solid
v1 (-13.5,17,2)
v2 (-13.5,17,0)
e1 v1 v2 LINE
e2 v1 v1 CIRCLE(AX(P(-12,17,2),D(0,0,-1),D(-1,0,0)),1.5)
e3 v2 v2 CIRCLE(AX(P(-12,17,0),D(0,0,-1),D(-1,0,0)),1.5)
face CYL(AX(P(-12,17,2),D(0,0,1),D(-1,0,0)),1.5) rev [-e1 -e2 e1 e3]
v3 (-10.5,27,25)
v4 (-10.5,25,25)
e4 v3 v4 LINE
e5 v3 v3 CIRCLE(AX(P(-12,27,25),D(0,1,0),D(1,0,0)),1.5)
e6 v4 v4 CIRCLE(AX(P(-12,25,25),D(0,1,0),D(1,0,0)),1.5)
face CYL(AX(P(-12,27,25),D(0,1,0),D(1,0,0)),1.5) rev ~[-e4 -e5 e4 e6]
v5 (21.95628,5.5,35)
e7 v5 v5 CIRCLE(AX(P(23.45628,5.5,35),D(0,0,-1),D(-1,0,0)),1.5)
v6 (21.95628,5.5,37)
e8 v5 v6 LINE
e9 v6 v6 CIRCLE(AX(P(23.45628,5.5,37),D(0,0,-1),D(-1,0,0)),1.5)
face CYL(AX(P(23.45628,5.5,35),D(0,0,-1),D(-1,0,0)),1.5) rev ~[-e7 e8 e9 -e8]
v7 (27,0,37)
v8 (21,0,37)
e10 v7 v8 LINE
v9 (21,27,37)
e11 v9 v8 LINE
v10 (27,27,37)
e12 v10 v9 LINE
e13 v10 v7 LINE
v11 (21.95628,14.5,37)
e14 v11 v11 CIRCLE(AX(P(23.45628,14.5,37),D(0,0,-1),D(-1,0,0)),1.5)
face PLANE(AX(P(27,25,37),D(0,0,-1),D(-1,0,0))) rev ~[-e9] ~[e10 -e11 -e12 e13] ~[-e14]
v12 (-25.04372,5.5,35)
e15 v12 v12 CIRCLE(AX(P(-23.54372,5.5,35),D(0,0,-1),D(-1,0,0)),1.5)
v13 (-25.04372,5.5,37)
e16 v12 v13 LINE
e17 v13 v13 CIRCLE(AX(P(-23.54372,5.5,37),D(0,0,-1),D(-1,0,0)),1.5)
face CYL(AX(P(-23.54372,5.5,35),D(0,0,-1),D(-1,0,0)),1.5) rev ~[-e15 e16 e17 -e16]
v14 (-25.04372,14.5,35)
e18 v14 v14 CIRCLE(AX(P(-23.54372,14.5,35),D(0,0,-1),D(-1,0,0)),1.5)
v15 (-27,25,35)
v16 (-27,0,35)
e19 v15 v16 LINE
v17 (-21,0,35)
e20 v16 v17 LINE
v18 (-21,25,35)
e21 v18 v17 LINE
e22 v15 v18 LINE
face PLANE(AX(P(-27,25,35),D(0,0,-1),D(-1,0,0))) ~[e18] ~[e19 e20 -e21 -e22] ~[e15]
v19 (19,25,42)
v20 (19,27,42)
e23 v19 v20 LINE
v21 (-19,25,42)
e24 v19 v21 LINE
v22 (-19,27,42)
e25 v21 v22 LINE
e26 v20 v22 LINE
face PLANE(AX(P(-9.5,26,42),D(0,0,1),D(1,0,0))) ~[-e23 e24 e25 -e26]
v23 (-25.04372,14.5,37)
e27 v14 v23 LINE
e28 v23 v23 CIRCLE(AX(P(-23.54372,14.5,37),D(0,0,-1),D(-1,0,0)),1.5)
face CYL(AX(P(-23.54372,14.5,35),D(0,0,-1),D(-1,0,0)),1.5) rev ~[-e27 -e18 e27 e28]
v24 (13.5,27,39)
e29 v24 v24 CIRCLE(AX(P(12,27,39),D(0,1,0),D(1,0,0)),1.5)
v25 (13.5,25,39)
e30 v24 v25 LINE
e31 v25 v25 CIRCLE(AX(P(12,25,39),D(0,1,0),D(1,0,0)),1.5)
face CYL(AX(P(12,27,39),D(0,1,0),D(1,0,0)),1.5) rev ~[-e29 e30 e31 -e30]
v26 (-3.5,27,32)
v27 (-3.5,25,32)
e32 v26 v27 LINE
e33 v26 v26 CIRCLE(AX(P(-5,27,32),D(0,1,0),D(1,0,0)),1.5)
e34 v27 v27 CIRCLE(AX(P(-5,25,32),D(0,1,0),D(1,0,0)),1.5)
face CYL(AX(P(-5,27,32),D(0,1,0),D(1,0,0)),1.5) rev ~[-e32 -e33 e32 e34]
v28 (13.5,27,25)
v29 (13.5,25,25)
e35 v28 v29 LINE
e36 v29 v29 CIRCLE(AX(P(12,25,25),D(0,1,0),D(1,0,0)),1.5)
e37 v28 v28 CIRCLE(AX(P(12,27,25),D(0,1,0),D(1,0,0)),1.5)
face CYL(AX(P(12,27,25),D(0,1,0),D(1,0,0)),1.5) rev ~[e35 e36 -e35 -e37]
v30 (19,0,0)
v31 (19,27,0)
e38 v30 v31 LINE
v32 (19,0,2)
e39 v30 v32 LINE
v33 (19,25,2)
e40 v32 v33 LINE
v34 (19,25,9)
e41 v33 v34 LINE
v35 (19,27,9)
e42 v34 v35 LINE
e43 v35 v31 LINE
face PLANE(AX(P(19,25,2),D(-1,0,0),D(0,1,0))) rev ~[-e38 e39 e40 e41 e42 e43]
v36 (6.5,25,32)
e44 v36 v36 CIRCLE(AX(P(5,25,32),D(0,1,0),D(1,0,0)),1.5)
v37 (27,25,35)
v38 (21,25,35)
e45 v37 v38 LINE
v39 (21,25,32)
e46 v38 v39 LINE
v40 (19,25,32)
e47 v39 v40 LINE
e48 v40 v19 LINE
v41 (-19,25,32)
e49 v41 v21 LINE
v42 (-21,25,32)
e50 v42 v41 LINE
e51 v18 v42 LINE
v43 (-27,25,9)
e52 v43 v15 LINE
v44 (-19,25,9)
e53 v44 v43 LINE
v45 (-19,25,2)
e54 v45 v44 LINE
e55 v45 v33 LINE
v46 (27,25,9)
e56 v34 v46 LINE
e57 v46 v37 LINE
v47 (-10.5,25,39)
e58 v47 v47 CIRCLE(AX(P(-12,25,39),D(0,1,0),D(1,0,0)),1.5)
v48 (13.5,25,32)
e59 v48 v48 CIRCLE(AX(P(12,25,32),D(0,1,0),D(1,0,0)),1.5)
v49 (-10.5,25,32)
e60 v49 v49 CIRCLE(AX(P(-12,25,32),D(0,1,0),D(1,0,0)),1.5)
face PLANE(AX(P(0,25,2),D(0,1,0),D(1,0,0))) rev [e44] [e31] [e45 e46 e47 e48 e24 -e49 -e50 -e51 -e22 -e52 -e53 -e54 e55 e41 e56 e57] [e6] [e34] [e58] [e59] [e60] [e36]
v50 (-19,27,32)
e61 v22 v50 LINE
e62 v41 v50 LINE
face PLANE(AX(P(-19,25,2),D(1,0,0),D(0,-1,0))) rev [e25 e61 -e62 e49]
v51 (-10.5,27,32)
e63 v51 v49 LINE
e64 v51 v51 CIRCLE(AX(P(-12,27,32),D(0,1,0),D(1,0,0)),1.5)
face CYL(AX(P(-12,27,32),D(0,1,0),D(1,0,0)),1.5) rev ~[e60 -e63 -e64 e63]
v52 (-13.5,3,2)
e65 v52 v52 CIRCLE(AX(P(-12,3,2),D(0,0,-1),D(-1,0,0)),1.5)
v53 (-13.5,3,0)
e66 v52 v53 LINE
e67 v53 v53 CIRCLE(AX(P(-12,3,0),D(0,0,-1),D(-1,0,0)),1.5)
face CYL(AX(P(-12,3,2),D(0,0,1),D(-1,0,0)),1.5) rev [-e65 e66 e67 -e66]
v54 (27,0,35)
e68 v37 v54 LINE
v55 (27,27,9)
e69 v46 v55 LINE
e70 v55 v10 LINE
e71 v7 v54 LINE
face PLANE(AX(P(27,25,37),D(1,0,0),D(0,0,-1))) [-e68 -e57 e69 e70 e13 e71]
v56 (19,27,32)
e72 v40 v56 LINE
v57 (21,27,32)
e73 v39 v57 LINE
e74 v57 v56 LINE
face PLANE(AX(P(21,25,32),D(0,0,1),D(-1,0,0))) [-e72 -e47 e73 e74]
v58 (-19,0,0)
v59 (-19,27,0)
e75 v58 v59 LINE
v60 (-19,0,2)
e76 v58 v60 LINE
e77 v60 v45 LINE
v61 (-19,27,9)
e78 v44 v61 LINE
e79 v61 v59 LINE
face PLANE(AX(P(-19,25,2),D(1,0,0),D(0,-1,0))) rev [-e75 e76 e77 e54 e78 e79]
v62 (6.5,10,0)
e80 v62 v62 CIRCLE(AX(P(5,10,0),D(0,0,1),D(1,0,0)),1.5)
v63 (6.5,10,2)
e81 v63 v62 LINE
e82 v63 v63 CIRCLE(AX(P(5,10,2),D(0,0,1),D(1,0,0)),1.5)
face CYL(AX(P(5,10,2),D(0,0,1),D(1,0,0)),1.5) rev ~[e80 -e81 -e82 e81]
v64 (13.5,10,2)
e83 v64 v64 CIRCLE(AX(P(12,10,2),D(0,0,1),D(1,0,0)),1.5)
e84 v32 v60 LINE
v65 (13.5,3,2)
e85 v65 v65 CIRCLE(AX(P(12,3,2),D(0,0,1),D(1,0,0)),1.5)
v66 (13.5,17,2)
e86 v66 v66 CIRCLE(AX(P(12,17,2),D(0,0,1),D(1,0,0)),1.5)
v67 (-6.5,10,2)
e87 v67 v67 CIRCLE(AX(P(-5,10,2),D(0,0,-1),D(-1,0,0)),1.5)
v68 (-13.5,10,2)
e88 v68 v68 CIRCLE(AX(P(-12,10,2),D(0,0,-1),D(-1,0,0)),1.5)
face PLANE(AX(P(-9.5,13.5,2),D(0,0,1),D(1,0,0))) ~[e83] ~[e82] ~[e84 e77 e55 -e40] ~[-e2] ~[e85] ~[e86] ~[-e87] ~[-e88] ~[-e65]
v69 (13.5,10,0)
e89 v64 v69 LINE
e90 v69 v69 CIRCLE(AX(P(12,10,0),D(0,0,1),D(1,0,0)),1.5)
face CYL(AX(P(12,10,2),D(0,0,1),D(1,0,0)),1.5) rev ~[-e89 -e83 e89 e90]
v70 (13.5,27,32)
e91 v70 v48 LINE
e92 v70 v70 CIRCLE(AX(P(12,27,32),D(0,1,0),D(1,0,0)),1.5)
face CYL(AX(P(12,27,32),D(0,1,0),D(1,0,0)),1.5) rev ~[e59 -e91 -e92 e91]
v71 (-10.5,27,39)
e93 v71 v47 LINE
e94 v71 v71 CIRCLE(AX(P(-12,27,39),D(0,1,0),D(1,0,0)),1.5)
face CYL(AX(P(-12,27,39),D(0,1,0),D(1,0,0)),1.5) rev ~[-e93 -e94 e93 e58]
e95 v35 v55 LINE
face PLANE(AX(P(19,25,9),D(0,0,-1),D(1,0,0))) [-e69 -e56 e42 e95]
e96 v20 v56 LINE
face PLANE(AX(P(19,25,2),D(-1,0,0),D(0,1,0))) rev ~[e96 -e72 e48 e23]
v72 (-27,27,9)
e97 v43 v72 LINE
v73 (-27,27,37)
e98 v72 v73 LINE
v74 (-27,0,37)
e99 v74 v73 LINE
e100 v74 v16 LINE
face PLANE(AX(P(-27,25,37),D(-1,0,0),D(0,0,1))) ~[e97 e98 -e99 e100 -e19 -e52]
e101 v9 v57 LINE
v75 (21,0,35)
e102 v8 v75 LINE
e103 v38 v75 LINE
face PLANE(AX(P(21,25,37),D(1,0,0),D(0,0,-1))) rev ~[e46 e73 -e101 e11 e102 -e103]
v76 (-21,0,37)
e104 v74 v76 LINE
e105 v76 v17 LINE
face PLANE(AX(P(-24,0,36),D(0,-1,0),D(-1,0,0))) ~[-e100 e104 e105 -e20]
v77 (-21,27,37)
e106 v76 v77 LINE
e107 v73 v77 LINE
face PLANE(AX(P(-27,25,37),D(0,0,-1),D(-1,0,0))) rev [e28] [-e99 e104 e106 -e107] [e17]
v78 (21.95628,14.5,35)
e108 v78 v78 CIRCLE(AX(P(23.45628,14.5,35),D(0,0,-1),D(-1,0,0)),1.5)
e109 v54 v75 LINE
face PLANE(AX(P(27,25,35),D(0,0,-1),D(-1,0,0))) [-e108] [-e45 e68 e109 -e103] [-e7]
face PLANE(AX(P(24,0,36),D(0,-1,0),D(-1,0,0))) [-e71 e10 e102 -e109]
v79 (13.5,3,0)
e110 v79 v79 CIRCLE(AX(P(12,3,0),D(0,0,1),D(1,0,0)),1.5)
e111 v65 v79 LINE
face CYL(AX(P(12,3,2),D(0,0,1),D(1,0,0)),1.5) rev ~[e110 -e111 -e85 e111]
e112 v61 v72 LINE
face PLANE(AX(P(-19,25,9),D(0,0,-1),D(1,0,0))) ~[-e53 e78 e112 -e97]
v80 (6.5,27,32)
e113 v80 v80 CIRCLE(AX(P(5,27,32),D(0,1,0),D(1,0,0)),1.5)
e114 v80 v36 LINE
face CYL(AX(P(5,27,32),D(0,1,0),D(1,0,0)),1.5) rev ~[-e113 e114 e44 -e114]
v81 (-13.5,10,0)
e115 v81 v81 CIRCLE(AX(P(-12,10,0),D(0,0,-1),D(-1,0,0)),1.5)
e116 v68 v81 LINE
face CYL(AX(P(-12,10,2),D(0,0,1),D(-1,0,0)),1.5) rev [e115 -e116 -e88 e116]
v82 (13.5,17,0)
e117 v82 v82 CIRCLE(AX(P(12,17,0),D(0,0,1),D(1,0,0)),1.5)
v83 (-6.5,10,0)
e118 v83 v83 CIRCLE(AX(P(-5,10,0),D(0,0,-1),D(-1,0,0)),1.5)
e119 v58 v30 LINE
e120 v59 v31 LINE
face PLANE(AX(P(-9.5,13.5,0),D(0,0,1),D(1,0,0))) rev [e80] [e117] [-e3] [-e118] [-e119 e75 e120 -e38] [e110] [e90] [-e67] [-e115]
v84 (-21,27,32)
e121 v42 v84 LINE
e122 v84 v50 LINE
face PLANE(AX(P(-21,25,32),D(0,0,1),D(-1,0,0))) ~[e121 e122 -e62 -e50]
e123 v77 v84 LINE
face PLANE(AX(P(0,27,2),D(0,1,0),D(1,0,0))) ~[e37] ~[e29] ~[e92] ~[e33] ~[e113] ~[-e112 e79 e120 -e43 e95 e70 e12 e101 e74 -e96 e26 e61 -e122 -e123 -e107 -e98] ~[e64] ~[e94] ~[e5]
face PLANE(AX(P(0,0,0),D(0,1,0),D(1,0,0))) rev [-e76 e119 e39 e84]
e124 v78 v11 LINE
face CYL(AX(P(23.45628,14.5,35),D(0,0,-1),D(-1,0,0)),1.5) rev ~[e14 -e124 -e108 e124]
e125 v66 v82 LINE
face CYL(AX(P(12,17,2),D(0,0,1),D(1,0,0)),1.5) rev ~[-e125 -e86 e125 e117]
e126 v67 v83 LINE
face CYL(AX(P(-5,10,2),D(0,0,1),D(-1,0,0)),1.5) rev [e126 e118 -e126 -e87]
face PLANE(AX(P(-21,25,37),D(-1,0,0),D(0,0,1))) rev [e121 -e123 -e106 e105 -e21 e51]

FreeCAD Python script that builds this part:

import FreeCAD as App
import Part
import Sketcher
from FreeCAD import Vector


def add_polygon(sketch, points):
    """Adds a closed chain of lines whose ends are joined by coincident constraints."""
    first, n = sketch.GeometryCount, len(points)
    for a, b in zip(points, points[1:] + points[:1]):
        sketch.addGeometry(Part.LineSegment(App.Vector(*a, 0), App.Vector(*b, 0)), False)
    for i in range(n):
        sketch.addConstraint(Sketcher.Constraint("Coincident", first + i, 2, first + (i + 1) % n, 1))

doc = App.newDocument("Part")
body = doc.addObject("PartDesign::Body", "Body")

# Sketch on XY plane
sketch1 = body.newObject("Sketcher::SketchObject", "Sketch")
sketch1.AttachmentSupport = (doc.getObject("XY_Plane"), [""])
sketch1.MapMode = "FlatFace"
add_polygon(sketch1, [(0, 27), (0, 0), (19, 0), (19, 27)])  # lines 0-3
sketch1.addConstraint([
    Sketcher.Constraint("Vertical", 0),
    Sketcher.Constraint("Horizontal", 1),
    Sketcher.Constraint("Vertical", 2),
    Sketcher.Constraint("Horizontal", 3),
    Sketcher.Constraint("Coincident", 0, 2, -1, 1),
    Sketcher.Constraint("DistanceX", 1, 1, 1, 2, 19.0),
    Sketcher.Constraint("DistanceY", 0, 2, 0, 1, 27.0),
])
pad1 = body.newObject("PartDesign::Pad", "Pad")
pad1.Profile = sketch1
pad1.Length = 2

# Sketch on XY plane
sketch2 = body.newObject("Sketcher::SketchObject", "Sketch001")
sketch2.AttachmentSupport = (doc.getObject("XY_Plane"), [""])
sketch2.MapMode = "FlatFace"
sketch2.AttachmentOffset = App.Placement(Vector(0, 0, 2), App.Rotation())
add_polygon(sketch2, [(0, 27), (0, 25), (19, 25), (19, 27)])  # lines 0-3
sketch2.addConstraint([
    Sketcher.Constraint("Vertical", 0),
    Sketcher.Constraint("Horizontal", 1),
    Sketcher.Constraint("Vertical", 2),
    Sketcher.Constraint("Horizontal", 3),
    Sketcher.Constraint("PointOnObject", 0, 2, -2),
    Sketcher.Constraint("DistanceX", 1, 1, 1, 2, 19.0),
    Sketcher.Constraint("DistanceY", 0, 2, 0, 1, 2.0),
    Sketcher.Constraint("DistanceY", -1, 1, 0, 2, 25.0),
])
pad2 = body.newObject("PartDesign::Pad", "Pad001")
pad2.Profile = sketch2
pad2.Length = 40

# Sketch on XZ plane
sketch3 = body.newObject("Sketcher::SketchObject", "Sketch002")
sketch3.AttachmentSupport = (doc.getObject("XZ_Plane"), [""])
sketch3.MapMode = "FlatFace"
sketch3.AttachmentOffset = App.Placement(Vector(0, 0, -25), App.Rotation())
add_polygon(sketch3, [(19, 32), (19, 9), (27, 9), (27, 37), (21, 37), (21, 32)])  # lines 0-5
sketch3.addConstraint([
    Sketcher.Constraint("Vertical", 0),
    Sketcher.Constraint("Horizontal", 1),
    Sketcher.Constraint("Vertical", 2),
    Sketcher.Constraint("Horizontal", 3),
    Sketcher.Constraint("Vertical", 4),
    Sketcher.Constraint("Horizontal", 5),
    Sketcher.Constraint("DistanceX", 1, 1, 1, 2, 8.0),
    Sketcher.Constraint("DistanceX", 3, 2, 3, 1, 6.0),
    Sketcher.Constraint("DistanceY", 0, 2, 0, 1, 23.0),
    Sketcher.Constraint("DistanceY", 2, 1, 2, 2, 28.0),
    Sketcher.Constraint("DistanceX", -1, 1, 0, 2, 19.0),
    Sketcher.Constraint("DistanceY", -1, 1, 0, 2, 9.0),
])
pad3 = body.newObject("PartDesign::Pad", "Pad002")
pad3.Profile = sketch3
pad3.Length = 2
pad3.Reversed = True

# Sketch on XZ plane
sketch4 = body.newObject("Sketcher::SketchObject", "Sketch003")
sketch4.AttachmentSupport = (doc.getObject("XZ_Plane"), [""])
sketch4.MapMode = "FlatFace"
sketch4.AttachmentOffset = App.Placement(Vector(0, 0, -25), App.Rotation())
add_polygon(sketch4, [(27, 35), (27, 37), (21, 37), (21, 35)])  # lines 0-3
sketch4.addConstraint([
    Sketcher.Constraint("Vertical", 0),
    Sketcher.Constraint("Horizontal", 1),
    Sketcher.Constraint("Vertical", 2),
    Sketcher.Constraint("Horizontal", 3),
    Sketcher.Constraint("DistanceX", 1, 2, 1, 1, 6.0),
    Sketcher.Constraint("DistanceY", 0, 1, 0, 2, 2.0),
    Sketcher.Constraint("DistanceX", -1, 1, 0, 2, 27.0),
    Sketcher.Constraint("DistanceY", -1, 1, 0, 2, 37.0),
])
pad4 = body.newObject("PartDesign::Pad", "Pad003")
pad4.Profile = sketch4
pad4.Length = 25

# Sketch on XY plane
sketch5 = body.newObject("Sketcher::SketchObject", "Sketch004")
sketch5.AttachmentSupport = (doc.getObject("XY_Plane"), [""])
sketch5.MapMode = "FlatFace"
sketch5.AttachmentOffset = App.Placement(Vector(0, 0, 2), App.Rotation())
sketch5.addGeometry([
    Part.Circle(Vector(12, 3, 0), Vector(0, 0, 1), 1.5),
    Part.Circle(Vector(12, 10, 0), Vector(0, 0, 1), 1.5),
    Part.Circle(Vector(12, 17, 0), Vector(0, 0, 1), 1.5),
    Part.Circle(Vector(5, 10, 0), Vector(0, 0, 1), 1.5),
], False)
sketch5.addConstraint([
    Sketcher.Constraint("Equal", 0, 1),
    Sketcher.Constraint("Equal", 1, 2),
    Sketcher.Constraint("Equal", 2, 3),
    Sketcher.Constraint("Horizontal", 1, 3, 3, 3),
    Sketcher.Constraint("Vertical", 0, 3, 1, 3),
    Sketcher.Constraint("Vertical", 1, 3, 2, 3),
    Sketcher.Constraint("Diameter", 0, 3.0),
    Sketcher.Constraint("DistanceX", -1, 1, 0, 3, 12.0),
    Sketcher.Constraint("DistanceY", -1, 1, 0, 3, 3.0),
    Sketcher.Constraint("DistanceY", -1, 1, 1, 3, 10.0),
    Sketcher.Constraint("DistanceY", -1, 1, 2, 3, 17.0),
    Sketcher.Constraint("DistanceX", -1, 1, 3, 3, 5.0),
])
pocket1 = body.newObject("PartDesign::Pocket", "Pocket")
pocket1.Profile = sketch5
pocket1.Length = 2
doc.recompute()

mirrored = body.newObject("PartDesign::Mirrored", "Mirrored")
mirrored.Originals = [pad1, pad2, pad3, pad4, pocket1]
mirrored.MirrorPlane = (doc.getObject("YZ_Plane"), [""])
body.Tip = mirrored

# Sketch on XY plane
sketch6 = body.newObject("Sketcher::SketchObject", "Sketch005")
sketch6.AttachmentSupport = (doc.getObject("XY_Plane"), [""])
sketch6.MapMode = "FlatFace"
sketch6.AttachmentOffset = App.Placement(Vector(0, 0, 35), App.Rotation())
sketch6.addGeometry(Part.Circle(Vector(23.5, 5.5, 0), Vector(0, 0, 1), 1.5), False)
sketch6.addConstraint([
    Sketcher.Constraint("Diameter", 0, 3.0),
    Sketcher.Constraint("DistanceY", -1, 1, 0, 3, 5.5),
    Sketcher.Constraint("DistanceX", -1, 1, 0, 3, 23.45628),
])
pocket2 = body.newObject("PartDesign::Pocket", "Pocket001")
pocket2.Profile = sketch6
pocket2.Type = "UpToFirst"
pocket2.Reversed = True

# Sketch on XY plane
sketch7 = body.newObject("Sketcher::SketchObject", "Sketch006")
sketch7.AttachmentSupport = (doc.getObject("XY_Plane"), [""])
sketch7.MapMode = "FlatFace"
sketch7.AttachmentOffset = App.Placement(Vector(0, 0, 35), App.Rotation())
sketch7.addGeometry(Part.Circle(Vector(23.5, 14.5, 0), Vector(0, 0, 1), 1.5), False)
sketch7.addConstraint([
    Sketcher.Constraint("Diameter", 0, 3.0),
    Sketcher.Constraint("DistanceY", -1, 1, 0, 3, 14.5),
    Sketcher.Constraint("DistanceX", -1, 1, 0, 3, 23.45628),
])
pocket3 = body.newObject("PartDesign::Pocket", "Pocket002")
pocket3.Profile = sketch7
pocket3.Type = "UpToFirst"
pocket3.Reversed = True

# Sketch on XY plane
sketch8 = body.newObject("Sketcher::SketchObject", "Sketch007")
sketch8.AttachmentSupport = (doc.getObject("XY_Plane"), [""])
sketch8.MapMode = "FlatFace"
sketch8.AttachmentOffset = App.Placement(Vector(0, 0, 35), App.Rotation())
sketch8.addGeometry(Part.Circle(Vector(-23.5, 5.5, 0), Vector(0, 0, 1), 1.5), False)
sketch8.addConstraint([
    Sketcher.Constraint("Diameter", 0, 3.0),
    Sketcher.Constraint("DistanceY", -1, 1, 0, 3, 5.5),
    Sketcher.Constraint("DistanceX", 0, 3, -1, 1, 23.54372),
])
pocket4 = body.newObject("PartDesign::Pocket", "Pocket003")
pocket4.Profile = sketch8
pocket4.Type = "UpToFirst"
pocket4.Reversed = True

# Sketch on XY plane
sketch9 = body.newObject("Sketcher::SketchObject", "Sketch008")
sketch9.AttachmentSupport = (doc.getObject("XY_Plane"), [""])
sketch9.MapMode = "FlatFace"
sketch9.AttachmentOffset = App.Placement(Vector(0, 0, 35), App.Rotation())
sketch9.addGeometry(Part.Circle(Vector(-23.5, 14.5, 0), Vector(0, 0, 1), 1.5), False)
sketch9.addConstraint([
    Sketcher.Constraint("Diameter", 0, 3.0),
    Sketcher.Constraint("DistanceY", -1, 1, 0, 3, 14.5),
    Sketcher.Constraint("DistanceX", 0, 3, -1, 1, 23.54372),
])
pocket5 = body.newObject("PartDesign::Pocket", "Pocket004")
pocket5.Profile = sketch9
pocket5.Type = "UpToFirst"
pocket5.Reversed = True

# Sketch on XZ plane
sketch10 = body.newObject("Sketcher::SketchObject", "Sketch009")
sketch10.AttachmentSupport = (doc.getObject("XZ_Plane"), [""])
sketch10.MapMode = "FlatFace"
sketch10.AttachmentOffset = App.Placement(Vector(0, 0, -27), App.Rotation())
sketch10.addGeometry(Part.Circle(Vector(12, 32, 0), Vector(0, 0, 1), 1.5), False)
sketch10.addConstraint([
    Sketcher.Constraint("Diameter", 0, 3.0),
    Sketcher.Constraint("DistanceX", -1, 1, 0, 3, 12.0),
    Sketcher.Constraint("DistanceY", -1, 1, 0, 3, 32.0),
])
pocket6 = body.newObject("PartDesign::Pocket", "Pocket005")
pocket6.Profile = sketch10
pocket6.Type = "UpToFirst"
pocket6.Reversed = True

# Sketch on XZ plane
sketch11 = body.newObject("Sketcher::SketchObject", "Sketch010")
sketch11.AttachmentSupport = (doc.getObject("XZ_Plane"), [""])
sketch11.MapMode = "FlatFace"
sketch11.AttachmentOffset = App.Placement(Vector(0, 0, -27), App.Rotation())
sketch11.addGeometry(Part.Circle(Vector(12, 25, 0), Vector(0, 0, 1), 1.5), False)
sketch11.addConstraint([
    Sketcher.Constraint("Diameter", 0, 3.0),
    Sketcher.Constraint("DistanceX", -1, 1, 0, 3, 12.0),
    Sketcher.Constraint("DistanceY", -1, 1, 0, 3, 25.0),
])
pocket7 = body.newObject("PartDesign::Pocket", "Pocket006")
pocket7.Profile = sketch11
pocket7.Type = "UpToFirst"
pocket7.Reversed = True

# Sketch on XZ plane
sketch12 = body.newObject("Sketcher::SketchObject", "Sketch011")
sketch12.AttachmentSupport = (doc.getObject("XZ_Plane"), [""])
sketch12.MapMode = "FlatFace"
sketch12.AttachmentOffset = App.Placement(Vector(0, 0, -27), App.Rotation())
sketch12.addGeometry(Part.Circle(Vector(12, 39, 0), Vector(0, 0, 1), 1.5), False)
sketch12.addConstraint([
    Sketcher.Constraint("Diameter", 0, 3.0),
    Sketcher.Constraint("DistanceX", -1, 1, 0, 3, 12.0),
    Sketcher.Constraint("DistanceY", -1, 1, 0, 3, 39.0),
])
pocket8 = body.newObject("PartDesign::Pocket", "Pocket007")
pocket8.Profile = sketch12
pocket8.Type = "UpToFirst"
pocket8.Reversed = True

# Sketch on XZ plane
sketch13 = body.newObject("Sketcher::SketchObject", "Sketch012")
sketch13.AttachmentSupport = (doc.getObject("XZ_Plane"), [""])
sketch13.MapMode = "FlatFace"
sketch13.AttachmentOffset = App.Placement(Vector(0, 0, -27), App.Rotation())
sketch13.addGeometry(Part.Circle(Vector(5, 32, 0), Vector(0, 0, 1), 1.5), False)
sketch13.addConstraint([
    Sketcher.Constraint("Diameter", 0, 3.0),
    Sketcher.Constraint("DistanceX", -1, 1, 0, 3, 5.0),
    Sketcher.Constraint("DistanceY", -1, 1, 0, 3, 32.0),
])
pocket9 = body.newObject("PartDesign::Pocket", "Pocket008")
pocket9.Profile = sketch13
pocket9.Type = "UpToFirst"
pocket9.Reversed = True

# Sketch on XZ plane
sketch14 = body.newObject("Sketcher::SketchObject", "Sketch013")
sketch14.AttachmentSupport = (doc.getObject("XZ_Plane"), [""])
sketch14.MapMode = "FlatFace"
sketch14.AttachmentOffset = App.Placement(Vector(0, 0, -27), App.Rotation())
sketch14.addGeometry(Part.Circle(Vector(-5, 32, 0), Vector(0, 0, 1), 1.5), False)
sketch14.addConstraint([
    Sketcher.Constraint("Diameter", 0, 3.0),
    Sketcher.Constraint("DistanceX", 0, 3, -1, 1, 5.0),
    Sketcher.Constraint("DistanceY", -1, 1, 0, 3, 32.0),
])
pocket10 = body.newObject("PartDesign::Pocket", "Pocket009")
pocket10.Profile = sketch14
pocket10.Type = "UpToFirst"
pocket10.Reversed = True

# Sketch on XZ plane
sketch15 = body.newObject("Sketcher::SketchObject", "Sketch014")
sketch15.AttachmentSupport = (doc.getObject("XZ_Plane"), [""])
sketch15.MapMode = "FlatFace"
sketch15.AttachmentOffset = App.Placement(Vector(0, 0, -27), App.Rotation())
sketch15.addGeometry(Part.Circle(Vector(-12, 32, 0), Vector(0, 0, 1), 1.5), False)
sketch15.addConstraint([
    Sketcher.Constraint("Diameter", 0, 3.0),
    Sketcher.Constraint("DistanceX", 0, 3, -1, 1, 12.0),
    Sketcher.Constraint("DistanceY", -1, 1, 0, 3, 32.0),
])
pocket11 = body.newObject("PartDesign::Pocket", "Pocket010")
pocket11.Profile = sketch15
pocket11.Type = "UpToFirst"
pocket11.Reversed = True

# Sketch on XZ plane
sketch16 = body.newObject("Sketcher::SketchObject", "Sketch015")
sketch16.AttachmentSupport = (doc.getObject("XZ_Plane"), [""])
sketch16.MapMode = "FlatFace"
sketch16.AttachmentOffset = App.Placement(Vector(0, 0, -27), App.Rotation())
sketch16.addGeometry(Part.Circle(Vector(-12, 39, 0), Vector(0, 0, 1), 1.5), False)
sketch16.addConstraint([
    Sketcher.Constraint("Diameter", 0, 3.0),
    Sketcher.Constraint("DistanceX", 0, 3, -1, 1, 12.0),
    Sketcher.Constraint("DistanceY", -1, 1, 0, 3, 39.0),
])
pocket12 = body.newObject("PartDesign::Pocket", "Pocket011")
pocket12.Profile = sketch16
pocket12.Type = "UpToFirst"
pocket12.Reversed = True

# Sketch on XZ plane
sketch17 = body.newObject("Sketcher::SketchObject", "Sketch016")
sketch17.AttachmentSupport = (doc.getObject("XZ_Plane"), [""])
sketch17.MapMode = "FlatFace"
sketch17.AttachmentOffset = App.Placement(Vector(0, 0, -27), App.Rotation())
sketch17.addGeometry(Part.Circle(Vector(-12, 25, 0), Vector(0, 0, 1), 1.5), False)
sketch17.addConstraint([
    Sketcher.Constraint("Diameter", 0, 3.0),
    Sketcher.Constraint("DistanceX", 0, 3, -1, 1, 12.0),
    Sketcher.Constraint("DistanceY", -1, 1, 0, 3, 25.0),
])
pocket13 = body.newObject("PartDesign::Pocket", "Pocket012")
pocket13.Profile = sketch17
pocket13.Type = "UpToFirst"
pocket13.Reversed = True

doc.recompute()
